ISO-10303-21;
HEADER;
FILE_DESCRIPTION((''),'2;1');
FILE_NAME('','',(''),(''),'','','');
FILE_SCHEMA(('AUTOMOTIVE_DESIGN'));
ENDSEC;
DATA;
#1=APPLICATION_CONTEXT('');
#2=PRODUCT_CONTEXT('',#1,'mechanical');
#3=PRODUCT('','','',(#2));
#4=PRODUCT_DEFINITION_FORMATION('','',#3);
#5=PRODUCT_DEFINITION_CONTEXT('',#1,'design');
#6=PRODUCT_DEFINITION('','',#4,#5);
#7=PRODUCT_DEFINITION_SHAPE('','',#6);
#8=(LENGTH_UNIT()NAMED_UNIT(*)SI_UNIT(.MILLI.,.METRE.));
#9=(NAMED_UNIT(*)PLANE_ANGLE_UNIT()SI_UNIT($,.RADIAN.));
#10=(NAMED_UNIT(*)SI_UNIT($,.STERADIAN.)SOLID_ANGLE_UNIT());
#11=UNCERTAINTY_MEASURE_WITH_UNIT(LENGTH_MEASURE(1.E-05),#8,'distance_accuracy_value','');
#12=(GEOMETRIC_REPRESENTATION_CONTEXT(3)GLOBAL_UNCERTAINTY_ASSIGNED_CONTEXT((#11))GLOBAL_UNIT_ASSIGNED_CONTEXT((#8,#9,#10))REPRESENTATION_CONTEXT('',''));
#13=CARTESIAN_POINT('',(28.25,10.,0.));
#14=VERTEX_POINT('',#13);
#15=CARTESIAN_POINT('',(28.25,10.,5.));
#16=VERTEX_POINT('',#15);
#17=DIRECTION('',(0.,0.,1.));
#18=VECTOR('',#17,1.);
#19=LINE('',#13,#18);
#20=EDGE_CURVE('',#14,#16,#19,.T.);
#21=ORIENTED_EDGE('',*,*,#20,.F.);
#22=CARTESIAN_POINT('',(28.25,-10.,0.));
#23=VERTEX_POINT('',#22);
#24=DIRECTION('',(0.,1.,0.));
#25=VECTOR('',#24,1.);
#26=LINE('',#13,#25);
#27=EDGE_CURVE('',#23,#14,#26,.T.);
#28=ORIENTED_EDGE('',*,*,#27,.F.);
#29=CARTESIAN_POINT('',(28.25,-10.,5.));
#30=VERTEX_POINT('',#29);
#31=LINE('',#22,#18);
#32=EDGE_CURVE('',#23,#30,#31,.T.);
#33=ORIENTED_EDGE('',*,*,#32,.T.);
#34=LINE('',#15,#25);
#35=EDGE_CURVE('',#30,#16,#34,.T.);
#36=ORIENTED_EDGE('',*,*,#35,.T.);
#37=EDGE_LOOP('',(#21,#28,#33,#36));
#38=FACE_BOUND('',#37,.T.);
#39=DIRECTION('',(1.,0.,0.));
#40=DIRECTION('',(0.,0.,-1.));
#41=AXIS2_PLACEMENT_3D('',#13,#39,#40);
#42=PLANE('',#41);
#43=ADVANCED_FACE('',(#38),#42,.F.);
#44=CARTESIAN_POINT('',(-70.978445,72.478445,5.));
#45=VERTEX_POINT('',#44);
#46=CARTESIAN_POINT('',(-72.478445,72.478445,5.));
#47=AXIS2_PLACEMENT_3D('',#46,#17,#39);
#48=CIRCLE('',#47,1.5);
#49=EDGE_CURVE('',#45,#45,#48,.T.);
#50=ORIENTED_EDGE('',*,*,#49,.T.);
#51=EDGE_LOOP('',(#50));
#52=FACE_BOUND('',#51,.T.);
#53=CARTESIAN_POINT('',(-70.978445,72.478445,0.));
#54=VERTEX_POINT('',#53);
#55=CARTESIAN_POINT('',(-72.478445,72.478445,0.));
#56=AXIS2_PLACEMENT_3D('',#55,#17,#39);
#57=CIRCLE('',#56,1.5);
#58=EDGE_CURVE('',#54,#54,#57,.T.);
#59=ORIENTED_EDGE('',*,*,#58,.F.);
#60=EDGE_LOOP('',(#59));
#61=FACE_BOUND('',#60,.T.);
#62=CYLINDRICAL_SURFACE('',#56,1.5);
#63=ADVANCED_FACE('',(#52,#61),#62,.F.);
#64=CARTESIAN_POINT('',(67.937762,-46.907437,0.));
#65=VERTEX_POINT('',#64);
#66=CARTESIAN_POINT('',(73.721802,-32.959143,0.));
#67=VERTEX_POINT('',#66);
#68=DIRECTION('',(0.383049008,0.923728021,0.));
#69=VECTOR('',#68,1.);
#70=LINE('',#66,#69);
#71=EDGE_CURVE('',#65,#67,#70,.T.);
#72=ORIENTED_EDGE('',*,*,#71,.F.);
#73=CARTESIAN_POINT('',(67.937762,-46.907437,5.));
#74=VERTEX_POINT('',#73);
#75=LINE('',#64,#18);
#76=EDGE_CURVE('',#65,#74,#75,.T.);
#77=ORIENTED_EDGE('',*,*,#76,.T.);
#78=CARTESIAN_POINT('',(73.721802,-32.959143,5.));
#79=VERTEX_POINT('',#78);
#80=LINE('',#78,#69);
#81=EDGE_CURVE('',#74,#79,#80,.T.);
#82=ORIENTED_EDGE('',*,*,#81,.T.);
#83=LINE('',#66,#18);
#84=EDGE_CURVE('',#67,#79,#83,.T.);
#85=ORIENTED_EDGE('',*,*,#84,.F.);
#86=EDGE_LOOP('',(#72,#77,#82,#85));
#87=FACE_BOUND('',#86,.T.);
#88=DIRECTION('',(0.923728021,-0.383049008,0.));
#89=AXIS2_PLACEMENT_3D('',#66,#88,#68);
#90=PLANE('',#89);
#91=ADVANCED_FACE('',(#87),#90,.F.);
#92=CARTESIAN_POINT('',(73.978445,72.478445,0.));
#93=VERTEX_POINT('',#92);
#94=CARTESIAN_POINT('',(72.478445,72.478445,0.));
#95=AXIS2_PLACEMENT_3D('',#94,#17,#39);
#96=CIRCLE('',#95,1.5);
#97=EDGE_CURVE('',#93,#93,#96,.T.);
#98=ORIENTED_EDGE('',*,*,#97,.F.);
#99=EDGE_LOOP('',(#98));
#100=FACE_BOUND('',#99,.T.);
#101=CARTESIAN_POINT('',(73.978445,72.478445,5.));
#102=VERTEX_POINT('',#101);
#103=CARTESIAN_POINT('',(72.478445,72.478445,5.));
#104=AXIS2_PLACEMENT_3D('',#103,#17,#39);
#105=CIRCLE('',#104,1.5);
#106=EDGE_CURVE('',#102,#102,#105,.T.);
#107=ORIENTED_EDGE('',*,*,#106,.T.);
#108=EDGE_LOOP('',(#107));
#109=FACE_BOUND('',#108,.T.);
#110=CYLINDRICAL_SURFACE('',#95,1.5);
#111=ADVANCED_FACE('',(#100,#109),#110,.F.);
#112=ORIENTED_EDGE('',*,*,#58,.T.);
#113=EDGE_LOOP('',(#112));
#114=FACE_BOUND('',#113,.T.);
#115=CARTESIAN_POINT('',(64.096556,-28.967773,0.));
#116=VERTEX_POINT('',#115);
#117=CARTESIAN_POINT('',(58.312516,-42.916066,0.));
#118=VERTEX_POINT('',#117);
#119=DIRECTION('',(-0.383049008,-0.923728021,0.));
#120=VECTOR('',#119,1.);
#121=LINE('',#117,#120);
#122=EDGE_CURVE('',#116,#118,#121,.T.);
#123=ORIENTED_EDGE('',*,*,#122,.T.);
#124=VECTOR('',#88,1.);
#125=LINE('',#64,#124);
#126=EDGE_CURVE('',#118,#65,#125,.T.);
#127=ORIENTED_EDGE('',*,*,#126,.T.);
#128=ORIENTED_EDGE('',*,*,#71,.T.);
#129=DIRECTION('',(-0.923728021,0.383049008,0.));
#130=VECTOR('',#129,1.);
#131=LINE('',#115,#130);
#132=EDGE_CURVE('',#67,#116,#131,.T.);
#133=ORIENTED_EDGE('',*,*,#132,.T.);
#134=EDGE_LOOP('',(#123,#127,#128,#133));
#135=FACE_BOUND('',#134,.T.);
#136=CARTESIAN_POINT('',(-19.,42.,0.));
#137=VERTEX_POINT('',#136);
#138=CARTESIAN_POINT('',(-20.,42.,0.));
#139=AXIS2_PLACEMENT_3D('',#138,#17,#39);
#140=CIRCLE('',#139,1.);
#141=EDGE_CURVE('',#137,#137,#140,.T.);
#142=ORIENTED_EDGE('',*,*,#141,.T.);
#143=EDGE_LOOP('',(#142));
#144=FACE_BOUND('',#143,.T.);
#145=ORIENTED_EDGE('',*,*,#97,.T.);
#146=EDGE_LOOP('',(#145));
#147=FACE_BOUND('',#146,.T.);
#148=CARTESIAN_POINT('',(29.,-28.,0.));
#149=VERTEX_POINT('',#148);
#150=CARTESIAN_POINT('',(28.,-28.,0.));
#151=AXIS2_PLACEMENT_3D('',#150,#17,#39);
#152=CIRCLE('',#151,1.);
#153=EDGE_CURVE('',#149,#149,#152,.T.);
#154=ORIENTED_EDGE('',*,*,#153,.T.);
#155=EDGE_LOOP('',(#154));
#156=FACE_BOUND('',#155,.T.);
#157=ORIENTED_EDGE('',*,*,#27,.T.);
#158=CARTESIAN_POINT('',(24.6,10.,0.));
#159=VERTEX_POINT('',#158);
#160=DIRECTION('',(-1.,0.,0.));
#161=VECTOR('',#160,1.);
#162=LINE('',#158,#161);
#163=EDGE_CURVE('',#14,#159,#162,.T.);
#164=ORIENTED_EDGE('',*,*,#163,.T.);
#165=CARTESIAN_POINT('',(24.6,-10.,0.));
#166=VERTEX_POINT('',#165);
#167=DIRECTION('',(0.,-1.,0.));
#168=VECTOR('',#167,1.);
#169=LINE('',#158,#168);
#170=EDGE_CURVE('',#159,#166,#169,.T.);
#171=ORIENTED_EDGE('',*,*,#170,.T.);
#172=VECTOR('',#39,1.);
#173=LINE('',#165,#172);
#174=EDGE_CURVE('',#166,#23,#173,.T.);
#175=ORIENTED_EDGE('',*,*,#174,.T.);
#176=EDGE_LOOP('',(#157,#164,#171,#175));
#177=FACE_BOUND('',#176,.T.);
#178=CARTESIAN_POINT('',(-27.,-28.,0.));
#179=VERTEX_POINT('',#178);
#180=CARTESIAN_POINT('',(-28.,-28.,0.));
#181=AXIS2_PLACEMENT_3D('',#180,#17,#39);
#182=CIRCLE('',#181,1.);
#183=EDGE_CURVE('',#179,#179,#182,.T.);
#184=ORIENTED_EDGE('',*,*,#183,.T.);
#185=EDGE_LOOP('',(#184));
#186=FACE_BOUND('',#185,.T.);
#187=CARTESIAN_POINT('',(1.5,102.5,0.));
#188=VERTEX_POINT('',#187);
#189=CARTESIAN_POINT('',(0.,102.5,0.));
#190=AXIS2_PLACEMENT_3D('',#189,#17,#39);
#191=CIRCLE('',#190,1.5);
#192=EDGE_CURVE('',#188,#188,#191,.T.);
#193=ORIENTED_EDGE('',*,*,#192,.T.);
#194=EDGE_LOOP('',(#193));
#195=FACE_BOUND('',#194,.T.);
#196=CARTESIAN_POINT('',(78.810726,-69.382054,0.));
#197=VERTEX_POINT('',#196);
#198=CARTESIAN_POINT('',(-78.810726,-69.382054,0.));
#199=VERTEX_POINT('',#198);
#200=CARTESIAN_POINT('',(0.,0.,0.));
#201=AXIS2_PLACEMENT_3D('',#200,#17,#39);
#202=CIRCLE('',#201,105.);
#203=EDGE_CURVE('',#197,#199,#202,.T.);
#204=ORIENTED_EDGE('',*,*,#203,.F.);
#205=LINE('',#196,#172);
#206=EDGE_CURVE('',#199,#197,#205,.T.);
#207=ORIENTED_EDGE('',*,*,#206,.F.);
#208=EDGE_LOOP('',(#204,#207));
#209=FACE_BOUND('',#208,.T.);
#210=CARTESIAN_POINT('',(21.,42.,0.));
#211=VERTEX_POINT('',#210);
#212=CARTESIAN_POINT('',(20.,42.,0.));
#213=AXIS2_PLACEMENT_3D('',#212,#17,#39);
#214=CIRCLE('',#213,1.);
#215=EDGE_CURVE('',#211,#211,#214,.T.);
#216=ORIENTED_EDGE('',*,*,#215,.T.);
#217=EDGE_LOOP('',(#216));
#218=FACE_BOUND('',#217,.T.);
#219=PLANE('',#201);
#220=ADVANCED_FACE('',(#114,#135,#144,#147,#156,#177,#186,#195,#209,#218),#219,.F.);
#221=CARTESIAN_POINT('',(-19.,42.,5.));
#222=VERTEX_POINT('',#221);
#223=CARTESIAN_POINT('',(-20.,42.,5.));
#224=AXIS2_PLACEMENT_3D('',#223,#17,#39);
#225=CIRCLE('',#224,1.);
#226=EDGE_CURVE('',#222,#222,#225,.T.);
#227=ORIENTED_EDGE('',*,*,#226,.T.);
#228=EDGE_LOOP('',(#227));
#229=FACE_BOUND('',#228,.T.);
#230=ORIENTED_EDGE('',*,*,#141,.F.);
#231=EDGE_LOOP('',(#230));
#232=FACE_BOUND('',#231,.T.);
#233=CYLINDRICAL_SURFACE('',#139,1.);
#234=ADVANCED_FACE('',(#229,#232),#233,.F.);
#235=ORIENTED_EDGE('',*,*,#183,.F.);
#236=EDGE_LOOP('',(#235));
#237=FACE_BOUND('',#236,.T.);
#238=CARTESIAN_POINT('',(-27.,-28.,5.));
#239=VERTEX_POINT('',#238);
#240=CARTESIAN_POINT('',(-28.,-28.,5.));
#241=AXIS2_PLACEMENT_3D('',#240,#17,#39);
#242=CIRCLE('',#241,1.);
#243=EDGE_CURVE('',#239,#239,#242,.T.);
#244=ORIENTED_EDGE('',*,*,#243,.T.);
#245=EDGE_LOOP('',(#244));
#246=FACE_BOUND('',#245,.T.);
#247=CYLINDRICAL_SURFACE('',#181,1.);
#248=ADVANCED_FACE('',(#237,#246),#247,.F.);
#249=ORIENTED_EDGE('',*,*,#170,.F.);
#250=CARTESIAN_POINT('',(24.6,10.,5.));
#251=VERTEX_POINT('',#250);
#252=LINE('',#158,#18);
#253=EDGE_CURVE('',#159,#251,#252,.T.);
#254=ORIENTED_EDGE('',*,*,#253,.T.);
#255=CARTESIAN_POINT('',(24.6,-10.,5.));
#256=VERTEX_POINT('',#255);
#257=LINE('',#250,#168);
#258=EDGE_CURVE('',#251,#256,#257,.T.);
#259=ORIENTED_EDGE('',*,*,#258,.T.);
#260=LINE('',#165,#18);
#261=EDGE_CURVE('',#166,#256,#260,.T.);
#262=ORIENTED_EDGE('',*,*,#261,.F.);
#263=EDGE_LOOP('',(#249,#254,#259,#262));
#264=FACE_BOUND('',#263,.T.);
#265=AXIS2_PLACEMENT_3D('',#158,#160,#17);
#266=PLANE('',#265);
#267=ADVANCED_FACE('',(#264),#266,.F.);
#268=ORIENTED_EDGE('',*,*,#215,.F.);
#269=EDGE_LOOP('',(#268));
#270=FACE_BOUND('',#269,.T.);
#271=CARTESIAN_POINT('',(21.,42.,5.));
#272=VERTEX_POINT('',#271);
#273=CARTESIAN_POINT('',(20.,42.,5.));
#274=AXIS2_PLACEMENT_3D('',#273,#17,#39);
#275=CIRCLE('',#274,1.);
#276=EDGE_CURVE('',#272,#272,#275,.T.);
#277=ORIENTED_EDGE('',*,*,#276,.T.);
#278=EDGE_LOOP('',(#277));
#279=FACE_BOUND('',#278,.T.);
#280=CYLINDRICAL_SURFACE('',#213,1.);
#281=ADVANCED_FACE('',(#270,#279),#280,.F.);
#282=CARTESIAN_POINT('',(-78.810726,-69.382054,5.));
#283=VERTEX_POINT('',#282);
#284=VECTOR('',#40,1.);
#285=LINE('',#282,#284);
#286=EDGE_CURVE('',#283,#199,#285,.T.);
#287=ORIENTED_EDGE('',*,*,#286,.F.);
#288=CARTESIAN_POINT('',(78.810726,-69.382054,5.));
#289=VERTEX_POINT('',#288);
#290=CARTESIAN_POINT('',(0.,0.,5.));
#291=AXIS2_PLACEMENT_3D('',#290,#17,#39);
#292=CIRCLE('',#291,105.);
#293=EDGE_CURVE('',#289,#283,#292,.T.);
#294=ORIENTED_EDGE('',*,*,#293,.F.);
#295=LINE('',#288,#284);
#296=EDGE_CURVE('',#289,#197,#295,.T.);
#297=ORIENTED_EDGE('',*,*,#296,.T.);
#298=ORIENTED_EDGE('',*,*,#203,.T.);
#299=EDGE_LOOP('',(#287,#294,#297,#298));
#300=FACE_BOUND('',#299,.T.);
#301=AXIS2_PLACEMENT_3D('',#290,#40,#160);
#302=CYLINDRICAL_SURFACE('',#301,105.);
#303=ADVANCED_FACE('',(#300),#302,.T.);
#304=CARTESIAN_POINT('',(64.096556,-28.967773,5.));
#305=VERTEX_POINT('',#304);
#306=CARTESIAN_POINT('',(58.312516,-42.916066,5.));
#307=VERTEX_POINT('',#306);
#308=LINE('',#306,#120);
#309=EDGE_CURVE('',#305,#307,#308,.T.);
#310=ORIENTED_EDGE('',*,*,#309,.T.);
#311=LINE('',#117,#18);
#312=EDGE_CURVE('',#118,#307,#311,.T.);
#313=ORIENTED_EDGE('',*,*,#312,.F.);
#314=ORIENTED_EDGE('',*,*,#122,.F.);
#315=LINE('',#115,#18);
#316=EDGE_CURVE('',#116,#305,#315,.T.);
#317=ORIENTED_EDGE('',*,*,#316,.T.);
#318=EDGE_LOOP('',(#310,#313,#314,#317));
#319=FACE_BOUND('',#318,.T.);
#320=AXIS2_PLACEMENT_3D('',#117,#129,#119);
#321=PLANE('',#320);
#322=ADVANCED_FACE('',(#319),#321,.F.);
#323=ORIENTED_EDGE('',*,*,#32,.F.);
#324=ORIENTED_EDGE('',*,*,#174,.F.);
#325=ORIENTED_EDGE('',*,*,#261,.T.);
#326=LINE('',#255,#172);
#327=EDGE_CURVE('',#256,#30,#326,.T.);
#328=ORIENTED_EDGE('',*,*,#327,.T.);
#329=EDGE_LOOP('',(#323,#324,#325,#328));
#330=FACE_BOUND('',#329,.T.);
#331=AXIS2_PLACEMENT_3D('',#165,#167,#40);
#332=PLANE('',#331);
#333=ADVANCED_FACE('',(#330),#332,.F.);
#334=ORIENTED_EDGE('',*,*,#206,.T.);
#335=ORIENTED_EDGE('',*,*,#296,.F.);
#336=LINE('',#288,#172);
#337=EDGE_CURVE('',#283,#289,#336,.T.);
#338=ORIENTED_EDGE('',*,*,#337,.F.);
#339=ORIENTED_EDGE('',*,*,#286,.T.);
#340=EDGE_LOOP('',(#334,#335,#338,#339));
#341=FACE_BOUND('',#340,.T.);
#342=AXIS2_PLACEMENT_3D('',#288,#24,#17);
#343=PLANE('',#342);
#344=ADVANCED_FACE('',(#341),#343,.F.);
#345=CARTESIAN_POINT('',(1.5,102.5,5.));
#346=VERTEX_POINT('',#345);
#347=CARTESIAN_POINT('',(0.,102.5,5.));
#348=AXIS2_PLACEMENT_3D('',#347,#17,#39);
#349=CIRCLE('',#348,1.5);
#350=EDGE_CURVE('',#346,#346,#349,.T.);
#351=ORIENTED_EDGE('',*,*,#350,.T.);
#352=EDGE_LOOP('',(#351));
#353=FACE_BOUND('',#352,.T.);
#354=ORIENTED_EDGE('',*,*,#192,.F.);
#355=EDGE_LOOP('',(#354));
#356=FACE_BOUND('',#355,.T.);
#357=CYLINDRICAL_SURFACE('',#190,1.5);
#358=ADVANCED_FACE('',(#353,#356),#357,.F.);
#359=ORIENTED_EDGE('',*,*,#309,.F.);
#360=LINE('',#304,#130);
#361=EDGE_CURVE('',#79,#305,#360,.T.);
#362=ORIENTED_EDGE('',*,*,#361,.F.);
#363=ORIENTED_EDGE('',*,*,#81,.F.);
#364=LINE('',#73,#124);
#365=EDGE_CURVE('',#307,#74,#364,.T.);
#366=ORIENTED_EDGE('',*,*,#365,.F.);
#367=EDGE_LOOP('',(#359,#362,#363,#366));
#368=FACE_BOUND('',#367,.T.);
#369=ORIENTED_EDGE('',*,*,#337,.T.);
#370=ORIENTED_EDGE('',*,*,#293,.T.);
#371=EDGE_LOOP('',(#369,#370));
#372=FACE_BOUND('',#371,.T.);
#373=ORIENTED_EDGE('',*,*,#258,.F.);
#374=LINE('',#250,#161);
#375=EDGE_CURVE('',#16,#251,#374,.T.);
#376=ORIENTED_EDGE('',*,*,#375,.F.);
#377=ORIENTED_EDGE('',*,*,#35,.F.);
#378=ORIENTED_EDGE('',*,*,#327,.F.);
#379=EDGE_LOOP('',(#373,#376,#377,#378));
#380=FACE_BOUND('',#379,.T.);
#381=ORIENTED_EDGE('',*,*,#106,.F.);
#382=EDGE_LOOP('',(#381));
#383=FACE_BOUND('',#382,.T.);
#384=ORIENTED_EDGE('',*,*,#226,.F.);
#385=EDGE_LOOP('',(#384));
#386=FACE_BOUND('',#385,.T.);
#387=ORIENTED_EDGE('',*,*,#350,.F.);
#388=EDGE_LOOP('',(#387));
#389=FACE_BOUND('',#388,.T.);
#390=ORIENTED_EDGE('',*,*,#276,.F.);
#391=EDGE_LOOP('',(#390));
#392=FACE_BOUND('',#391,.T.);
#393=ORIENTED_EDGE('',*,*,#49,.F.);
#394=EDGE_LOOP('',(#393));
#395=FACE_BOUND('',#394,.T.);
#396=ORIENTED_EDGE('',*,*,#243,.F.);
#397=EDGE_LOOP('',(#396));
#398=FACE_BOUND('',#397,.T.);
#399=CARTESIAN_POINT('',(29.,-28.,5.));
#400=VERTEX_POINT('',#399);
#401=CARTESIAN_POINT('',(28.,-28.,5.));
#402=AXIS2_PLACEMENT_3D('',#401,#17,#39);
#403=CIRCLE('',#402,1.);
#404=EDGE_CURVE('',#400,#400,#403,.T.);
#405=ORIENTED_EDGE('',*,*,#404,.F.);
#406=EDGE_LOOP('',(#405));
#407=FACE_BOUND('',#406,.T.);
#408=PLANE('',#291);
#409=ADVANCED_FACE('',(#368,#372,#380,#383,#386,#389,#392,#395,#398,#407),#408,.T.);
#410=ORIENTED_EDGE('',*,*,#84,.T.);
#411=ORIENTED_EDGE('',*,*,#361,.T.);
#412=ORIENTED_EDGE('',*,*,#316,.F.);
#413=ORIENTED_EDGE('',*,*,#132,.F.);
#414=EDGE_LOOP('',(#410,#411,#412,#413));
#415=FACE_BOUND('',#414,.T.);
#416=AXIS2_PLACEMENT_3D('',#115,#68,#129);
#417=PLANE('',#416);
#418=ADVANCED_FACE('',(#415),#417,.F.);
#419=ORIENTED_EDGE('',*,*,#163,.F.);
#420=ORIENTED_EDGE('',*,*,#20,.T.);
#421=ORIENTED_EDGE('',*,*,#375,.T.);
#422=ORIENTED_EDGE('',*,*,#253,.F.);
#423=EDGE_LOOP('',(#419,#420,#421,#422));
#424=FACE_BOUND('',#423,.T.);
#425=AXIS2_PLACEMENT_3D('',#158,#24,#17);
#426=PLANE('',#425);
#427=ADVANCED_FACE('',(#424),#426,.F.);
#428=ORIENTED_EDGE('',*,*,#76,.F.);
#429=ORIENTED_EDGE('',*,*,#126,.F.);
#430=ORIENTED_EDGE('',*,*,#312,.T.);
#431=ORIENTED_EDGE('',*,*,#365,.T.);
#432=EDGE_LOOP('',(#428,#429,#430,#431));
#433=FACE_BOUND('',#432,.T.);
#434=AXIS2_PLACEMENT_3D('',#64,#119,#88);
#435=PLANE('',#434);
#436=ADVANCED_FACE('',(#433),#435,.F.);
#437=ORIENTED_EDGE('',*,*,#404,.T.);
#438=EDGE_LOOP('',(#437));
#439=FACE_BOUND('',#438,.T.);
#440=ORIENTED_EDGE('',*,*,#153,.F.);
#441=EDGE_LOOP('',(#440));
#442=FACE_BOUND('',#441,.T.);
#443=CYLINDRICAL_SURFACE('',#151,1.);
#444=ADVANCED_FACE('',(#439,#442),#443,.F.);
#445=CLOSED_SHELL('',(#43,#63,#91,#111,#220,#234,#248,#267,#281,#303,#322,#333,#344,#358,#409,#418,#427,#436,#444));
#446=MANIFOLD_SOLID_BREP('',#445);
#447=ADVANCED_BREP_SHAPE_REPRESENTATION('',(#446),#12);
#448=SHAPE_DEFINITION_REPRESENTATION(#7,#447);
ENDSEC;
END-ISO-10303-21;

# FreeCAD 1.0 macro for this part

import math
import FreeCAD as App
import Part
import Sketcher
from FreeCAD import Vector


def add_polygon(sketch, points):
    """Adds a closed chain of lines whose ends are joined by coincident constraints."""
    first, n = sketch.GeometryCount, len(points)
    for a, b in zip(points, points[1:] + points[:1]):
        sketch.addGeometry(Part.LineSegment(App.Vector(*a, 0), App.Vector(*b, 0)), False)
    for i in range(n):
        sketch.addConstraint(Sketcher.Constraint("Coincident", first + i, 2, first + (i + 1) % n, 1))

doc = App.newDocument("Part")
body = doc.addObject("PartDesign::Body", "Body")

# Sketch on XY plane
sketch1 = body.newObject("Sketcher::SketchObject", "Sketch")
sketch1.AttachmentSupport = (doc.getObject("XY_Plane"), [""])
sketch1.MapMode = "FlatFace"
sketch1.addGeometry([
    Part.LineSegment(Vector(-79, -69, 0), Vector(79, -69, 0)),
    Part.ArcOfCircle(Part.Circle(Vector(0, 0, 0), Vector(0, 0, 1), 105), math.radians(-41), math.radians(221)),
], False)
sketch1.addConstraint([
    Sketcher.Constraint("Coincident", 0, 1, 1, 2),
    Sketcher.Constraint("Coincident", 1, 1, 0, 2),
    Sketcher.Constraint("Horizontal", 0),
    Sketcher.Constraint("Coincident", 1, 3, -1, 1),
    Sketcher.Constraint("Radius", 1, 105.0),
    Sketcher.Constraint("DistanceX", 0, 1, 0, 2, 157.621452),
])
pad1 = body.newObject("PartDesign::Pad", "Pad")
pad1.Profile = sketch1
pad1.Length = 5

# Sketch on XY plane
sketch2 = body.newObject("Sketcher::SketchObject", "Sketch001")
sketch2.AttachmentSupport = (doc.getObject("XY_Plane"), [""])
sketch2.MapMode = "FlatFace"
sketch2.AttachmentOffset = App.Placement(Vector(0, 0, 5), App.Rotation())
sketch2.addGeometry([
    Part.Circle(Vector(0, 102.5, 0), Vector(0, 0, 1), 1.5),
    Part.Circle(Vector(72.5, 72.5, 0), Vector(0, 0, 1), 1.5),
    Part.Circle(Vector(-72.5, 72.5, 0), Vector(0, 0, 1), 1.5),
], False)
sketch2.addConstraint([
    Sketcher.Constraint("Equal", 0, 1),
    Sketcher.Constraint("Equal", 1, 2),
    Sketcher.Constraint("Symmetric", 1, 3, 2, 3, -2),
    Sketcher.Constraint("PointOnObject", 0, 3, -2),
    Sketcher.Constraint("Diameter", 0, 3.0),
    Sketcher.Constraint("DistanceY", -1, 1, 0, 3, 102.5),
    Sketcher.Constraint("DistanceX", 2, 3, 1, 3, 144.95689),
    Sketcher.Constraint("DistanceY", -1, 1, 1, 3, 72.478445),
])
pocket1 = body.newObject("PartDesign::Pocket", "Pocket")
pocket1.Profile = sketch2
pocket1.Length = 5

# Sketch on XY plane
sketch3 = body.newObject("Sketcher::SketchObject", "Sketch002")
sketch3.AttachmentSupport = (doc.getObject("XY_Plane"), [""])
sketch3.MapMode = "FlatFace"
sketch3.AttachmentOffset = App.Placement(Vector(0, 0, 5), App.Rotation())
sketch3.addGeometry([
    Part.Circle(Vector(20, 42, 0), Vector(0, 0, 1), 1),
    Part.Circle(Vector(-20, 42, 0), Vector(0, 0, 1), 1),
    Part.Circle(Vector(-28, -28, 0), Vector(0, 0, 1), 1),
    Part.Circle(Vector(28, -28, 0), Vector(0, 0, 1), 1),
], False)
sketch3.addConstraint([
    Sketcher.Constraint("Equal", 0, 1),
    Sketcher.Constraint("Equal", 1, 2),
    Sketcher.Constraint("Equal", 2, 3),
    Sketcher.Constraint("Symmetric", 0, 3, 1, 3, -2),
    Sketcher.Constraint("Symmetric", 2, 3, 3, 3, -2),
    Sketcher.Constraint("Diameter", 0, 2.0),
    Sketcher.Constraint("DistanceX", -1, 1, 0, 3, 20.0),
    Sketcher.Constraint("DistanceY", -1, 1, 0, 3, 42.0),
    Sketcher.Constraint("DistanceX", 2, 3, -1, 1, 28.0),
    Sketcher.Constraint("DistanceY", 2, 3, -1, 1, 28.0),
])
pocket2 = body.newObject("PartDesign::Pocket", "Pocket001")
pocket2.Profile = sketch3
pocket2.Type = "ThroughAll"

# Sketch on XY plane
sketch4 = body.newObject("Sketcher::SketchObject", "Sketch003")
sketch4.AttachmentSupport = (doc.getObject("XY_Plane"), [""])
sketch4.MapMode = "FlatFace"
sketch4.AttachmentOffset = App.Placement(Vector(0, 0, 5), App.Rotation())
add_polygon(sketch4, [(64, -29), (58, -43), (68, -47), (74, -33)])  # lines 0-3
sketch4.addConstraint([
    Sketcher.Constraint("Perpendicular", 0, 1),
    Sketcher.Constraint("Perpendicular", 1, 2),
    Sketcher.Constraint("Perpendicular", 2, 3),
    Sketcher.Constraint("Distance", 0, 15.1),
    Sketcher.Constraint("Distance", 1, 10.42),
    Sketcher.Constraint("DistanceX", -1, 1, 2, 2, 73.721802),
    Sketcher.Constraint("DistanceX", -1, 1, 1, 2, 67.937762),
    Sketcher.Constraint("DistanceY", 0, 2, -1, 1, 42.916066),
])
pocket3 = body.newObject("PartDesign::Pocket", "Pocket002")
pocket3.Profile = sketch4
pocket3.Type = "ThroughAll"

# Sketch on XY plane
sketch5 = body.newObject("Sketcher::SketchObject", "Sketch004")
sketch5.AttachmentSupport = (doc.getObject("XY_Plane"), [""])
sketch5.MapMode = "FlatFace"
sketch5.AttachmentOffset = App.Placement(Vector(0, 0, 5), App.Rotation())
add_polygon(sketch5, [(24.6, 10), (24.6, -10), (28.2, -10), (28.2, 10)])  # lines 0-3
sketch5.addConstraint([
    Sketcher.Constraint("Vertical", 0),
    Sketcher.Constraint("Horizontal", 1),
    Sketcher.Constraint("Vertical", 2),
    Sketcher.Constraint("Horizontal", 3),
    Sketcher.Constraint("DistanceY", 0, 2, 0, 1, 20.0),
    Sketcher.Constraint("DistanceY", 0, 2, -1, 1, 10.0),
    Sketcher.Constraint("DistanceX", 1, 1, 1, 2, 3.65),
    Sketcher.Constraint("DistanceX", -1, 1, 0, 2, 24.6),
])
pocket4 = body.newObject("PartDesign::Pocket", "Pocket003")
pocket4.Profile = sketch5
pocket4.Type = "ThroughAll"

doc.recompute()
